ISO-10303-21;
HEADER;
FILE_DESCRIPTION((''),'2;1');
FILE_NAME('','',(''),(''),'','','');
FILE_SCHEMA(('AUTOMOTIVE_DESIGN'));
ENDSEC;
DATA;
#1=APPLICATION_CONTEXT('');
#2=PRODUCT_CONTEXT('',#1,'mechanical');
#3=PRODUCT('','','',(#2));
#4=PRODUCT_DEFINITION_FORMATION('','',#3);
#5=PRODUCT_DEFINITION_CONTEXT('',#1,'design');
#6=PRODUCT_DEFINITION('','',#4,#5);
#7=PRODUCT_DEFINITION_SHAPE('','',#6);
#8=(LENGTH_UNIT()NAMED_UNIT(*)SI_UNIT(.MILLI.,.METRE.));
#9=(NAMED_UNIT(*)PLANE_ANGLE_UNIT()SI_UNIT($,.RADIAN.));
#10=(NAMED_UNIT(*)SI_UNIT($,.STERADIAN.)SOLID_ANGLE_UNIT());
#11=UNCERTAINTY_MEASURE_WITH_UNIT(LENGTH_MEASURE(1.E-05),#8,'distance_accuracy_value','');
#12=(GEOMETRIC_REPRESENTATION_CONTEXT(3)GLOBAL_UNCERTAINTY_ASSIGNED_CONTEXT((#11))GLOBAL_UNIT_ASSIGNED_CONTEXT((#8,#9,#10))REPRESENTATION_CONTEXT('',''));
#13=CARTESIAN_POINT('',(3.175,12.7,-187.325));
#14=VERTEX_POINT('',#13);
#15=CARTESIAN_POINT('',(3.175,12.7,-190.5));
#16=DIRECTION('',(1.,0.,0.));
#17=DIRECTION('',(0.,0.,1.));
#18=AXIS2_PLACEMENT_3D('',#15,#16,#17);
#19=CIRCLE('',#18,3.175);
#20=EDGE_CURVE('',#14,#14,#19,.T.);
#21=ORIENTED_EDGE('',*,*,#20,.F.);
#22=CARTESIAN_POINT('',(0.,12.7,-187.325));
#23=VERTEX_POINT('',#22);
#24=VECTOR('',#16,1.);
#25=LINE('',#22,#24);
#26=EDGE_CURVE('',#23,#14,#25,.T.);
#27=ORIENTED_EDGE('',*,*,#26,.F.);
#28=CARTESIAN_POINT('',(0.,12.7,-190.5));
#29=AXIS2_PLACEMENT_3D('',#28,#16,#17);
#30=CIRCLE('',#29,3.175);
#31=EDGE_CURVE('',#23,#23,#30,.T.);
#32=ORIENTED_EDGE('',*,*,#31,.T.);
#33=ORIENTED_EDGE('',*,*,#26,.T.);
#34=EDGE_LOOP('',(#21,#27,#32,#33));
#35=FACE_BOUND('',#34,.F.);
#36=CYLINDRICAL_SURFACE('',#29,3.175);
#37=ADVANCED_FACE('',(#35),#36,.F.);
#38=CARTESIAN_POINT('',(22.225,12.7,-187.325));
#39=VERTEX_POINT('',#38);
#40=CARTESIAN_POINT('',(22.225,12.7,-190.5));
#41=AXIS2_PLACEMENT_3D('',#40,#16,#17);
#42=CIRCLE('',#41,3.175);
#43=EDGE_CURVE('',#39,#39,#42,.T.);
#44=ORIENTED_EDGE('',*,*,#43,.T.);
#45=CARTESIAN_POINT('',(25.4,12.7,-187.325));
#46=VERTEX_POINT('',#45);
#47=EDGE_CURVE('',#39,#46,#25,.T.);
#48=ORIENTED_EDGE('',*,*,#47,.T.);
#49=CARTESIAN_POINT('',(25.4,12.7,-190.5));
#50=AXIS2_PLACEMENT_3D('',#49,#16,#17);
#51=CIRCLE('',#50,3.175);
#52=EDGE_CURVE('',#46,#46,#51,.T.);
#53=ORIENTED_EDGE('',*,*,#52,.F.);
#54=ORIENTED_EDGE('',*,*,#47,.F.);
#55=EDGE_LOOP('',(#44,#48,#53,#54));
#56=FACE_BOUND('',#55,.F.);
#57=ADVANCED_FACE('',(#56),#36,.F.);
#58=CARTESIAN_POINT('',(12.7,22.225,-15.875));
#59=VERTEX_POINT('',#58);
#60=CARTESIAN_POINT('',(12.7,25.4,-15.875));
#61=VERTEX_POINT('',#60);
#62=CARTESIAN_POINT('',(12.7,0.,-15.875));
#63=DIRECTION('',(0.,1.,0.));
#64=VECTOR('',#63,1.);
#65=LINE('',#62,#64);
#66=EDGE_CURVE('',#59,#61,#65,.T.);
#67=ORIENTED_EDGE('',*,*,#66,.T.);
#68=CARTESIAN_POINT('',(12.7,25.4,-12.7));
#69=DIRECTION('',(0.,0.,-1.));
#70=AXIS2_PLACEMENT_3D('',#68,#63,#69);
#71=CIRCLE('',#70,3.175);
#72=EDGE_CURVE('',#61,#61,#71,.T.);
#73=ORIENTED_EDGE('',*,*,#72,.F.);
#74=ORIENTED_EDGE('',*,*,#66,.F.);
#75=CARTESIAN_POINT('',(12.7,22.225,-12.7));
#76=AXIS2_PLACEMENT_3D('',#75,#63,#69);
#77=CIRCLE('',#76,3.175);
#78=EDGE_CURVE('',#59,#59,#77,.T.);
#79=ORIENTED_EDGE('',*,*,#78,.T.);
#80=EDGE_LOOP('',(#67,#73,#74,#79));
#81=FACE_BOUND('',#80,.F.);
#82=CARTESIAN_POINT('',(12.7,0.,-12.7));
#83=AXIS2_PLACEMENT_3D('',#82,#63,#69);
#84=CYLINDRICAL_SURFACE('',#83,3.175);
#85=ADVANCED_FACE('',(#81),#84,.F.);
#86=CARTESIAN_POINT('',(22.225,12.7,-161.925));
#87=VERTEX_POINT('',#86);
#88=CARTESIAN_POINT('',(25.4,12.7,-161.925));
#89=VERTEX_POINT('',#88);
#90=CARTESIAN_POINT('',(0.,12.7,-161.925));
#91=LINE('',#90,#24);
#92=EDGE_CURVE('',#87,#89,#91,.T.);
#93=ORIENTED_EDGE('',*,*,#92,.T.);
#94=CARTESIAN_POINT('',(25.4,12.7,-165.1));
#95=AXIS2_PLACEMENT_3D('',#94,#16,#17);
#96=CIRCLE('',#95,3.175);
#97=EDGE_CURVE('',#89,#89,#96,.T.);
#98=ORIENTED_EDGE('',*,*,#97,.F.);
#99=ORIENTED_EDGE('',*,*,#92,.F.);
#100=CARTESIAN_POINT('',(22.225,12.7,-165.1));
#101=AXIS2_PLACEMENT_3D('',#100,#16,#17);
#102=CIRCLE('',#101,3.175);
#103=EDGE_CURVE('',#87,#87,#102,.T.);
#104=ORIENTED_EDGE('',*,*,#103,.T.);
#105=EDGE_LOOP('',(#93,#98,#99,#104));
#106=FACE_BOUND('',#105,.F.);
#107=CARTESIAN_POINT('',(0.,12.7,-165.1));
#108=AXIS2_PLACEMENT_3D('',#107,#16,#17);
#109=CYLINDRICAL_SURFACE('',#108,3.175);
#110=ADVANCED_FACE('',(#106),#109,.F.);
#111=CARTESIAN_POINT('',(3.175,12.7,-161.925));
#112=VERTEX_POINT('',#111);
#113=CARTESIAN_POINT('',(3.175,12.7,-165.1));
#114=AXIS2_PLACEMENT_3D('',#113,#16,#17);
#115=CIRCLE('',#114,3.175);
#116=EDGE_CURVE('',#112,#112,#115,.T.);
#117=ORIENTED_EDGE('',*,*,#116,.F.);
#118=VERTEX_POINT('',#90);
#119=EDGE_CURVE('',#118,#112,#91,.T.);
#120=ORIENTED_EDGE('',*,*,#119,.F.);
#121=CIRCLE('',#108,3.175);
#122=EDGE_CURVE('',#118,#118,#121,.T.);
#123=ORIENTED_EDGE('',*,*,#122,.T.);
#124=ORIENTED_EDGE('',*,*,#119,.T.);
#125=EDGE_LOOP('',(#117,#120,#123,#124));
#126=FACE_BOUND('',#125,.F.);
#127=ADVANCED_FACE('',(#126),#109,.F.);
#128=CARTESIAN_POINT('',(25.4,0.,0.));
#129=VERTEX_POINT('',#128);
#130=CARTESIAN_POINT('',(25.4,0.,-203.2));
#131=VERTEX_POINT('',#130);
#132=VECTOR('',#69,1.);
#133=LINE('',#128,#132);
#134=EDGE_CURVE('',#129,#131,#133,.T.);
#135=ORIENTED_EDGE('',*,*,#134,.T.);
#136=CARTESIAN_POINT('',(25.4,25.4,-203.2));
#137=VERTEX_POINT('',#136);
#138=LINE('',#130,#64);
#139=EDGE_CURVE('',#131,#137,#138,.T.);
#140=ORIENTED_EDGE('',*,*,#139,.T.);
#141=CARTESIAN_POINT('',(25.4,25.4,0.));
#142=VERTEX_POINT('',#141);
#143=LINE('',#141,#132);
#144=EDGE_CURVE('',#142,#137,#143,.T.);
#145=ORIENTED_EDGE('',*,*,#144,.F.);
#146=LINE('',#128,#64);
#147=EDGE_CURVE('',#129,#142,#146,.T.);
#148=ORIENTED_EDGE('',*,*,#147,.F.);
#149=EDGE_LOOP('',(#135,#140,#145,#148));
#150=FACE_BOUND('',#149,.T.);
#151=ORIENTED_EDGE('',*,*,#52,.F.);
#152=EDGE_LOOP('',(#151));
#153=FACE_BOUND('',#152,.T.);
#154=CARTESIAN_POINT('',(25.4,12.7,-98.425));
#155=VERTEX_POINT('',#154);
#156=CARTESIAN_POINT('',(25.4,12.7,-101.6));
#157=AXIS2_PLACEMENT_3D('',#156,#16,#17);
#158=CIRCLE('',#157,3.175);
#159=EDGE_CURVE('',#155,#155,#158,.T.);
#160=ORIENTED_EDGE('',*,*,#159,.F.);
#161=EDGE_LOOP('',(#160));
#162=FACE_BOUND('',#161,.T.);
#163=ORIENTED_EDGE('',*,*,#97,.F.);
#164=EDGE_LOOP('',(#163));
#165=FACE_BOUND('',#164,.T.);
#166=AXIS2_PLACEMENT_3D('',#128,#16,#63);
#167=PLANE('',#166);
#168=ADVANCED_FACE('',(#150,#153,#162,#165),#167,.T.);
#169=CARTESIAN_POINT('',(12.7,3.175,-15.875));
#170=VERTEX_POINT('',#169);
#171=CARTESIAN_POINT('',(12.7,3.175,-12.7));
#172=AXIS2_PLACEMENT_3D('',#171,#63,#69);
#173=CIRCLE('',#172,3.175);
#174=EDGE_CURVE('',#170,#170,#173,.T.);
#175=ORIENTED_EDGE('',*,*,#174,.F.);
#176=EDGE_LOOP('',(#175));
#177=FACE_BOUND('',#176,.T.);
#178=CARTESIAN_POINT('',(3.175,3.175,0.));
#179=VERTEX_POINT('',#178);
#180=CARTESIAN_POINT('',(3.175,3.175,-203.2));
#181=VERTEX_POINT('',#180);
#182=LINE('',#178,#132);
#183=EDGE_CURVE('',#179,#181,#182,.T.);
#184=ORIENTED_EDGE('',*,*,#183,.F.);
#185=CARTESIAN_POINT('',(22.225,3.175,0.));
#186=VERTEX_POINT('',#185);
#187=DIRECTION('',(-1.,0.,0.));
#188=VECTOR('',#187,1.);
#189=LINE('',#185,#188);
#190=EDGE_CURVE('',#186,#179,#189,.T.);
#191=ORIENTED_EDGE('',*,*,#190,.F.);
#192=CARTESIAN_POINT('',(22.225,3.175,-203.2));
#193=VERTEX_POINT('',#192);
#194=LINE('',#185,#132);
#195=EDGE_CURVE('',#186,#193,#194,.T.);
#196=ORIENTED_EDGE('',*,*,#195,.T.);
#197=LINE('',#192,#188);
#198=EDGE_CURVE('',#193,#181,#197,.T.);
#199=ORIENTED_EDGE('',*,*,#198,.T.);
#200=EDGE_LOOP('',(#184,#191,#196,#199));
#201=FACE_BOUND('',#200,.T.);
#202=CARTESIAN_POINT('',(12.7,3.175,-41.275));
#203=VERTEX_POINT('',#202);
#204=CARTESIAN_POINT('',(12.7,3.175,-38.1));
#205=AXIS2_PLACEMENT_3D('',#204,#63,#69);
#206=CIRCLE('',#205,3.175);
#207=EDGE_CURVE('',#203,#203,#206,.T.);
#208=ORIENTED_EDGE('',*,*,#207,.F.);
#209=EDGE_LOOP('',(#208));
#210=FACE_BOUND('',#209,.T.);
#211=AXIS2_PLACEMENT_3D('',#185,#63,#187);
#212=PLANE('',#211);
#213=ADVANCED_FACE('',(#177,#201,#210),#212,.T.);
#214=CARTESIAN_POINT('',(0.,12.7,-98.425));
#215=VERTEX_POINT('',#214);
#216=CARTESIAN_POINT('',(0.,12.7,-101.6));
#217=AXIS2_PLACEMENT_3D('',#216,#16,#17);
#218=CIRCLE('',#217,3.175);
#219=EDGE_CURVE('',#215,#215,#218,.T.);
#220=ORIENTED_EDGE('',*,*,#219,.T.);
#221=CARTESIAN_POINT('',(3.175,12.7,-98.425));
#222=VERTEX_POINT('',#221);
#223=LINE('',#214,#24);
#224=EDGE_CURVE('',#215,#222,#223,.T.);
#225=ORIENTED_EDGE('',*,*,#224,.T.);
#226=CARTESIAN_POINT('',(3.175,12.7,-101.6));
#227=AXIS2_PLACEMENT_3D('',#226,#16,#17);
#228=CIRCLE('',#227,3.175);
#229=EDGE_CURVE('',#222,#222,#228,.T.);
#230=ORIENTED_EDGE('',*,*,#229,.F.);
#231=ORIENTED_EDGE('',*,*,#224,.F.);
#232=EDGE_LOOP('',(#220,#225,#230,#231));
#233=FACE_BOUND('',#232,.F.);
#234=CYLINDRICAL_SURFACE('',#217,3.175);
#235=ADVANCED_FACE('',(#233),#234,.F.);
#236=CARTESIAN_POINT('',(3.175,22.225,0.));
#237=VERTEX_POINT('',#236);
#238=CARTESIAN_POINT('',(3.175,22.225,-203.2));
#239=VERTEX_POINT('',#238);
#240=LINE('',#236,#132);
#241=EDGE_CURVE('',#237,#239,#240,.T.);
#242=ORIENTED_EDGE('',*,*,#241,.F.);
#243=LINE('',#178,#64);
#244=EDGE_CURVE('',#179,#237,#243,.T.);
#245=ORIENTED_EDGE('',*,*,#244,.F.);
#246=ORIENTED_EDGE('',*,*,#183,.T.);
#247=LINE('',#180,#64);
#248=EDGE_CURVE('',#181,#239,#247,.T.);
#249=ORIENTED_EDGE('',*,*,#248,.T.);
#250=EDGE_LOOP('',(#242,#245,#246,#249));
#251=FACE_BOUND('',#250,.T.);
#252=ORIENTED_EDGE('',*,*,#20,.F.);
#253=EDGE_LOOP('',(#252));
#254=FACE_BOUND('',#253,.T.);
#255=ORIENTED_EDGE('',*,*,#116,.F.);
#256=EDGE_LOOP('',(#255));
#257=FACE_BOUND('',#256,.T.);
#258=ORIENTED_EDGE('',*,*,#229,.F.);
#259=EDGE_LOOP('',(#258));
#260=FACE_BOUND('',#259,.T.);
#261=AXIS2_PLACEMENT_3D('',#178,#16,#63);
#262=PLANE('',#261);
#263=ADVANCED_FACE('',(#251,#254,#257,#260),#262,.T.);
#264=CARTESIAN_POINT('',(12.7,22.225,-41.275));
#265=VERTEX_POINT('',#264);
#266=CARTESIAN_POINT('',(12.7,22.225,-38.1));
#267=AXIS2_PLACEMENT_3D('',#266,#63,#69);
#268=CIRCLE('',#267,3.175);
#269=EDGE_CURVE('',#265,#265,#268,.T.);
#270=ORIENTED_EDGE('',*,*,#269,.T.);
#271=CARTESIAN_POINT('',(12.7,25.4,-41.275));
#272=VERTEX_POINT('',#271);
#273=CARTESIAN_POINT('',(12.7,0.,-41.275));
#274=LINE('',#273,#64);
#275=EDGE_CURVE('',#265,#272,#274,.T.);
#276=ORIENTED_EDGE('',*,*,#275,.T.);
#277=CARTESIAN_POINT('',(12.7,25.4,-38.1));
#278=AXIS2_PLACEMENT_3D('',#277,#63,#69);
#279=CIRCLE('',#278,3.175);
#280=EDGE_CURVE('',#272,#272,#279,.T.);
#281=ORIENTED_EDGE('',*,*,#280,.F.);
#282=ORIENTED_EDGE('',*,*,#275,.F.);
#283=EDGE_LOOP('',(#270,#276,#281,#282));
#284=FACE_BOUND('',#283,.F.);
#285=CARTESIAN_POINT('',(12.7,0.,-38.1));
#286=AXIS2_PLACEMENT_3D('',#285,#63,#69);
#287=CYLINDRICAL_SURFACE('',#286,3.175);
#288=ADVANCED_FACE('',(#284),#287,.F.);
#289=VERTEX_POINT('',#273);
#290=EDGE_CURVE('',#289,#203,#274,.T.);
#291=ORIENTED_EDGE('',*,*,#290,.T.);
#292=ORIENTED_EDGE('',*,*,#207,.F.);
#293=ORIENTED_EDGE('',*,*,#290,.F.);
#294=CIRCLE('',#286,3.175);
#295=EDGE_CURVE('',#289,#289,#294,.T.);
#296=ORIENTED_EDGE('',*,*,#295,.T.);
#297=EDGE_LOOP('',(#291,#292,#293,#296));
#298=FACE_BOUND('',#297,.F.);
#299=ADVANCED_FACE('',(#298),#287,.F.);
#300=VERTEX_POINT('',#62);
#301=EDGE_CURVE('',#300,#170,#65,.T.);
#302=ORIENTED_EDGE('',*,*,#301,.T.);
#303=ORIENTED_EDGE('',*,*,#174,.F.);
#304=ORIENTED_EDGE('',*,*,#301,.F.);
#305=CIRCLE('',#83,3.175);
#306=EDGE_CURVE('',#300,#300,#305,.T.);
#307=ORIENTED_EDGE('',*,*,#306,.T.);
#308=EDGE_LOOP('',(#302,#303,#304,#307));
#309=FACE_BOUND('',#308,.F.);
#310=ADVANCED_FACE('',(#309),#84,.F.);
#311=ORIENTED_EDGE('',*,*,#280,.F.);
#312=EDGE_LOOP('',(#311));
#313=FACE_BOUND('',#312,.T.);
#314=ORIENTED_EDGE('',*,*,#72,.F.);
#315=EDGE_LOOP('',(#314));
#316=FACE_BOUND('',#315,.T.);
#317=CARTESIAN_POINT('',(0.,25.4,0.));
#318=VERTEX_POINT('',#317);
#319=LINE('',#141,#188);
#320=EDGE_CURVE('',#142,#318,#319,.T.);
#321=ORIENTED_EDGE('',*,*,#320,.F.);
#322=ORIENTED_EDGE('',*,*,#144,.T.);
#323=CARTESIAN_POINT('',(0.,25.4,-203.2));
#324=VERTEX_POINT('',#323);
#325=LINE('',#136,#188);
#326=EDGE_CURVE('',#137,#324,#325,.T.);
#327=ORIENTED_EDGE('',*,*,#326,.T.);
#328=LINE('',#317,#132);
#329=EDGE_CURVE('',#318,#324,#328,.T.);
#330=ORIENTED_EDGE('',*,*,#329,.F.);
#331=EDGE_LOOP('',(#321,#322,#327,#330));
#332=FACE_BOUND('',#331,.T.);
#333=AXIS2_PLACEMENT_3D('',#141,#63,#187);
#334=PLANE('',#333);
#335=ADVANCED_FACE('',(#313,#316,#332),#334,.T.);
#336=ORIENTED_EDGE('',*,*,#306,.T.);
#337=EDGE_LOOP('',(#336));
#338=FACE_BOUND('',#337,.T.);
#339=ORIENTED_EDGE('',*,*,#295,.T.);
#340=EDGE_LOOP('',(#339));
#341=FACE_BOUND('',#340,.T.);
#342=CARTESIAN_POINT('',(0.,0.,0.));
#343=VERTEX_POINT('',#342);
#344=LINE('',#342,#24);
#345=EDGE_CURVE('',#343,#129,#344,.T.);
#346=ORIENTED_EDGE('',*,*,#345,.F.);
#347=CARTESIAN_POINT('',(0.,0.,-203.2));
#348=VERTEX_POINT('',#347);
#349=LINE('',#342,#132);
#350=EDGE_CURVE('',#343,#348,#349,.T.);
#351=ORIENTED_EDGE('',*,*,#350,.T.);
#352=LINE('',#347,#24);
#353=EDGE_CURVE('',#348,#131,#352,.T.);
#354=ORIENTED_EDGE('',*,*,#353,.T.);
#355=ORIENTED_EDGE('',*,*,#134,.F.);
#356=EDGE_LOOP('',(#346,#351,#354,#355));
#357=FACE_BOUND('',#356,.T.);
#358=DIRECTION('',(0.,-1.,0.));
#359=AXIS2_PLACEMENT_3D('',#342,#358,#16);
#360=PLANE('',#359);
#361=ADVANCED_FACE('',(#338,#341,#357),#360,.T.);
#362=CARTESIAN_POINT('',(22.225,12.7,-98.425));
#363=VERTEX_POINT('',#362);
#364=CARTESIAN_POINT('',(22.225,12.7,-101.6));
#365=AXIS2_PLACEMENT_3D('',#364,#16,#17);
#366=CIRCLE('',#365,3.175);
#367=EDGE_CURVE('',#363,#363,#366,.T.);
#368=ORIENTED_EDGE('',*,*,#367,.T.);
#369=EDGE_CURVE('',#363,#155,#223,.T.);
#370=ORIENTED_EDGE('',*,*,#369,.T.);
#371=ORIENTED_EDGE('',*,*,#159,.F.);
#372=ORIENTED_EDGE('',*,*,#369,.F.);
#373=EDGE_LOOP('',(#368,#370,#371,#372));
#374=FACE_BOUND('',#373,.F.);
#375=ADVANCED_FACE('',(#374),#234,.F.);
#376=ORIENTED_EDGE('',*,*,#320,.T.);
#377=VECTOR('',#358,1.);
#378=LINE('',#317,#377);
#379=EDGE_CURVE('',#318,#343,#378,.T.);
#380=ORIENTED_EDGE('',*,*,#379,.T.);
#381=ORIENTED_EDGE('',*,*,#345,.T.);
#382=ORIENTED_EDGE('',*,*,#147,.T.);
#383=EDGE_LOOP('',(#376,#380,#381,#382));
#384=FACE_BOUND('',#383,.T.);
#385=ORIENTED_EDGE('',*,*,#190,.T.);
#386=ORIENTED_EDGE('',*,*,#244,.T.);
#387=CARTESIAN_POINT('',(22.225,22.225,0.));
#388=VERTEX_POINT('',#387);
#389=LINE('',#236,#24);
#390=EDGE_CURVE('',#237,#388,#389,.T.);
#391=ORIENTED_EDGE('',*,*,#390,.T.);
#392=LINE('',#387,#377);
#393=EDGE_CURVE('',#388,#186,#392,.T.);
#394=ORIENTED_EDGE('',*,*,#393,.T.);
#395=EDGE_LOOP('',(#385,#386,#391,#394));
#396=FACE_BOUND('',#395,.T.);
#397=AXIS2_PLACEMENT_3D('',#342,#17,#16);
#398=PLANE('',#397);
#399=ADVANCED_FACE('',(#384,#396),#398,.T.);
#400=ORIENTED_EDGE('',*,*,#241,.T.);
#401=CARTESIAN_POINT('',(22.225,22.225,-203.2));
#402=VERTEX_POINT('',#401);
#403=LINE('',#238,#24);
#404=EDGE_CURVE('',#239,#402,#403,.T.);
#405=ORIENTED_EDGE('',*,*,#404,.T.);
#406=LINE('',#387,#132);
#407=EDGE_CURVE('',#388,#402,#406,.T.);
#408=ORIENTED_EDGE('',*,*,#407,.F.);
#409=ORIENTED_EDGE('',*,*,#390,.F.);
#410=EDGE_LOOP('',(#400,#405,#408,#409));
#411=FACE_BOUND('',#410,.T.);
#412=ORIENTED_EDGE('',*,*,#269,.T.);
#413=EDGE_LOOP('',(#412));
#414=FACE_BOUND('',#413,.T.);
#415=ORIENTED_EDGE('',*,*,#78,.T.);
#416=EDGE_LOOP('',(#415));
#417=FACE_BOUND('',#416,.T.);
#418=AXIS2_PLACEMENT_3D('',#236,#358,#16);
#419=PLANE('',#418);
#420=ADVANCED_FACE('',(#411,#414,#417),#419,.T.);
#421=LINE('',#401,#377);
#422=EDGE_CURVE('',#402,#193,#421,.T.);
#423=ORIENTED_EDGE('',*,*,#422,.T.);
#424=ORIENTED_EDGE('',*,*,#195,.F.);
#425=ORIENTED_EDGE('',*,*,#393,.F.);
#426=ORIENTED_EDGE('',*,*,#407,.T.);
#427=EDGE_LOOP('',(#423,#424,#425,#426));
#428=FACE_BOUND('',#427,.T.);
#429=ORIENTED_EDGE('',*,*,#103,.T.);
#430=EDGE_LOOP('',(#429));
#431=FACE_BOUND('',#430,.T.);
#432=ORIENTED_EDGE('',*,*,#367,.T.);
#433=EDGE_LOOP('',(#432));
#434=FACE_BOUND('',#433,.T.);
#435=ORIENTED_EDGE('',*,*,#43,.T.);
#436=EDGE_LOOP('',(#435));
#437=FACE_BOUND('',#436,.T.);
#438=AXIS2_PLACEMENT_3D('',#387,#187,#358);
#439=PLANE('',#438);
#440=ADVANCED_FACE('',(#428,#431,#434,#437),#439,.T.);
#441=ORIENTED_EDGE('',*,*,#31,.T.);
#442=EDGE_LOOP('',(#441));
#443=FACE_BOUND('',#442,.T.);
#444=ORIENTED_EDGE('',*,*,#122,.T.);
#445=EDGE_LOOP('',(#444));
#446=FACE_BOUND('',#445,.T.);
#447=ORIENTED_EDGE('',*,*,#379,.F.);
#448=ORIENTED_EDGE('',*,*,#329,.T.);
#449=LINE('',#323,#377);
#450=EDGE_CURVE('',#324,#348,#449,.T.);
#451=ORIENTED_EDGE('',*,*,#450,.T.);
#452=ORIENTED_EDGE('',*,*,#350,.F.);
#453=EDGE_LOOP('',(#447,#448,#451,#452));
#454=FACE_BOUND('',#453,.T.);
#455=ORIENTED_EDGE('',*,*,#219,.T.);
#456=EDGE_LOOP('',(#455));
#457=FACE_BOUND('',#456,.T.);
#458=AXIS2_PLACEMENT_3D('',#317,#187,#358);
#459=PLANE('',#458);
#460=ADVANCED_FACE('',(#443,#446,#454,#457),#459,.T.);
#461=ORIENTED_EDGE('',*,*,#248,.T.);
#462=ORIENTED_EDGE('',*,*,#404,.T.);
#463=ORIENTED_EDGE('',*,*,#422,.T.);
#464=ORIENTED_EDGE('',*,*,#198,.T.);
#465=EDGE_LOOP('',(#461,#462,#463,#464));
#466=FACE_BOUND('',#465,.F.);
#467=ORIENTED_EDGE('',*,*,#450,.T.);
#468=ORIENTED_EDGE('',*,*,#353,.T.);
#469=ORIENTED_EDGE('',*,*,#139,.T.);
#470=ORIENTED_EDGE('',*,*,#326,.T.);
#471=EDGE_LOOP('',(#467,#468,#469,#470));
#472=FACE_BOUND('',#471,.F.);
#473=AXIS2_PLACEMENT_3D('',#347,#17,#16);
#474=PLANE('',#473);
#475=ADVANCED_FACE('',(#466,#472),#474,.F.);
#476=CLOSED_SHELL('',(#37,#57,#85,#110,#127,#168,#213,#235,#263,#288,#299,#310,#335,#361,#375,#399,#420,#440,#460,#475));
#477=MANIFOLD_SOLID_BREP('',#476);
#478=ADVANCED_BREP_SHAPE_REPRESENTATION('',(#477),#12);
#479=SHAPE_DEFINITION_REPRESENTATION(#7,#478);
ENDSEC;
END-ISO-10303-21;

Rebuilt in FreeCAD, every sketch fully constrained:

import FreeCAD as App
import Part
import Sketcher

V = App.Vector
Q = App.Units.Quantity


def add_polygon(sketch, points):
    """Adds a closed chain of lines whose ends are joined by coincident constraints."""
    first, n = sketch.GeometryCount, len(points)
    for a, b in zip(points, points[1:] + points[:1]):
        sketch.addGeometry(Part.LineSegment(App.Vector(*a, 0), App.Vector(*b, 0)), False)
    for i in range(n):
        sketch.addConstraint(Sketcher.Constraint("Coincident", first + i, 2, first + (i + 1) % n, 1))

doc = App.newDocument("Part")
body = doc.addObject("PartDesign::Body", "Body")

sketch1 = body.newObject("Sketcher::SketchObject", "Sketch")
sketch1.AttachmentSupport = (doc.getObject("XY_Plane"), [""])
sketch1.MapMode = "FlatFace"
add_polygon(sketch1, [(0, 25.4), (0, 0), (25.4, 0), (25.4, 25.4)])
add_polygon(sketch1, [(3.175, 3.175), (3.175, 22.225), (22.225, 22.225), (22.225, 3.175)])
sketch1.addConstraint([
    Sketcher.Constraint("Vertical", 0),
    Sketcher.Constraint("Horizontal", 1),
    Sketcher.Constraint("Vertical", 2),
    Sketcher.Constraint("Horizontal", 3),
    Sketcher.Constraint("Vertical", 4),
    Sketcher.Constraint("Horizontal", 5),
    Sketcher.Constraint("Vertical", 6),
    Sketcher.Constraint("Horizontal", 7),
    Sketcher.Constraint("Coincident", 0, 2, -1, 1),
    Sketcher.Constraint("Equal", 3, 0),
    Sketcher.Constraint("Equal", 7, 4),
    Sketcher.Constraint("DistanceX", 1, 1, 1, 2, Q("1 in")),
    Sketcher.Constraint("DistanceX", -1, 1, 4, 2, Q("0.125 in")),
    Sketcher.Constraint("DistanceY", -1, 1, 6, 2, Q("0.125 in")),
    Sketcher.Constraint("DistanceY", 4, 2, 3, 2, Q("0.125 in")),
])
pad1 = body.newObject("PartDesign::Pad", "Pad")
pad1.Profile = sketch1
pad1.Length = Q("8 in")
pad1.Reversed = True

sketch2 = body.newObject("Sketcher::SketchObject", "Sketch001")
sketch2.AttachmentSupport = (doc.getObject("YZ_Plane"), [""])
sketch2.MapMode = "FlatFace"
sketch2.addGeometry([
    Part.Circle(V(12.7, -190.5, 0), V(0, 0, 1), 3.175),
    Part.Circle(V(12.7, -165.1, 0), V(0, 0, 1), 3.175),
    Part.Circle(V(12.7, -101.6, 0), V(0, 0, 1), 3.175),
], False)
sketch2.addConstraint([
    Sketcher.Constraint("Equal", 0, 1),
    Sketcher.Constraint("Equal", 1, 2),
    Sketcher.Constraint("Vertical", 0, 3, 1, 3),
    Sketcher.Constraint("Vertical", 1, 3, 2, 3),
    Sketcher.Constraint("Diameter", 0, Q("0.25 in")),
    Sketcher.Constraint("DistanceY", 2, 3, -1, 1, Q("4 in")),
    Sketcher.Constraint("DistanceY", 0, 3, 1, 3, Q("1 in")),
    Sketcher.Constraint("DistanceX", -1, 1, 0, 3, Q("0.5 in")),
    Sketcher.Constraint("DistanceY", 0, 3, -1, 1, Q("7.5 in")),
])
doc.recompute()
hole = body.newObject("PartDesign::Hole", "Hole")
hole.Profile = sketch2
hole.ThreadType = "None"
hole.Diameter = Q("0.25 in")
hole.DepthType = "Dimension"
hole.Depth = Q("1 in")
hole.DrillPoint = "Angled"
hole.DrillPointAngle = 118
hole.Reversed = True

sketch3 = body.newObject("Sketcher::SketchObject", "Sketch002")
sketch3.AttachmentSupport = (doc.getObject("XZ_Plane"), [""])
sketch3.MapMode = "FlatFace"
sketch3.addGeometry([
    Part.Circle(V(12.7, -12.7, 0), V(0, 0, 1), 3.175),
    Part.Circle(V(12.7, -38.1, 0), V(0, 0, 1), 3.175),
], False)
sketch3.addConstraint([
    Sketcher.Constraint("Equal", 0, 1),
    Sketcher.Constraint("Vertical", 0, 3, 1, 3),
    Sketcher.Constraint("Diameter", 0, Q("0.25 in")),
    Sketcher.Constraint("DistanceY", 1, 3, 0, 3, Q("1 in")),
    Sketcher.Constraint("DistanceX", -1, 1, 0, 3, Q("0.5 in")),
    Sketcher.Constraint("DistanceY", 0, 3, -1, 1, Q("0.5 in")),
])
doc.recompute()
hole2 = body.newObject("PartDesign::Hole", "Hole001")
hole2.Profile = sketch3
hole2.ThreadType = "None"
hole2.Diameter = Q("0.25 in")
hole2.DepthType = "Dimension"
hole2.Depth = Q("1 in")
hole2.DrillPoint = "Angled"
hole2.DrillPointAngle = 118

doc.recompute()
